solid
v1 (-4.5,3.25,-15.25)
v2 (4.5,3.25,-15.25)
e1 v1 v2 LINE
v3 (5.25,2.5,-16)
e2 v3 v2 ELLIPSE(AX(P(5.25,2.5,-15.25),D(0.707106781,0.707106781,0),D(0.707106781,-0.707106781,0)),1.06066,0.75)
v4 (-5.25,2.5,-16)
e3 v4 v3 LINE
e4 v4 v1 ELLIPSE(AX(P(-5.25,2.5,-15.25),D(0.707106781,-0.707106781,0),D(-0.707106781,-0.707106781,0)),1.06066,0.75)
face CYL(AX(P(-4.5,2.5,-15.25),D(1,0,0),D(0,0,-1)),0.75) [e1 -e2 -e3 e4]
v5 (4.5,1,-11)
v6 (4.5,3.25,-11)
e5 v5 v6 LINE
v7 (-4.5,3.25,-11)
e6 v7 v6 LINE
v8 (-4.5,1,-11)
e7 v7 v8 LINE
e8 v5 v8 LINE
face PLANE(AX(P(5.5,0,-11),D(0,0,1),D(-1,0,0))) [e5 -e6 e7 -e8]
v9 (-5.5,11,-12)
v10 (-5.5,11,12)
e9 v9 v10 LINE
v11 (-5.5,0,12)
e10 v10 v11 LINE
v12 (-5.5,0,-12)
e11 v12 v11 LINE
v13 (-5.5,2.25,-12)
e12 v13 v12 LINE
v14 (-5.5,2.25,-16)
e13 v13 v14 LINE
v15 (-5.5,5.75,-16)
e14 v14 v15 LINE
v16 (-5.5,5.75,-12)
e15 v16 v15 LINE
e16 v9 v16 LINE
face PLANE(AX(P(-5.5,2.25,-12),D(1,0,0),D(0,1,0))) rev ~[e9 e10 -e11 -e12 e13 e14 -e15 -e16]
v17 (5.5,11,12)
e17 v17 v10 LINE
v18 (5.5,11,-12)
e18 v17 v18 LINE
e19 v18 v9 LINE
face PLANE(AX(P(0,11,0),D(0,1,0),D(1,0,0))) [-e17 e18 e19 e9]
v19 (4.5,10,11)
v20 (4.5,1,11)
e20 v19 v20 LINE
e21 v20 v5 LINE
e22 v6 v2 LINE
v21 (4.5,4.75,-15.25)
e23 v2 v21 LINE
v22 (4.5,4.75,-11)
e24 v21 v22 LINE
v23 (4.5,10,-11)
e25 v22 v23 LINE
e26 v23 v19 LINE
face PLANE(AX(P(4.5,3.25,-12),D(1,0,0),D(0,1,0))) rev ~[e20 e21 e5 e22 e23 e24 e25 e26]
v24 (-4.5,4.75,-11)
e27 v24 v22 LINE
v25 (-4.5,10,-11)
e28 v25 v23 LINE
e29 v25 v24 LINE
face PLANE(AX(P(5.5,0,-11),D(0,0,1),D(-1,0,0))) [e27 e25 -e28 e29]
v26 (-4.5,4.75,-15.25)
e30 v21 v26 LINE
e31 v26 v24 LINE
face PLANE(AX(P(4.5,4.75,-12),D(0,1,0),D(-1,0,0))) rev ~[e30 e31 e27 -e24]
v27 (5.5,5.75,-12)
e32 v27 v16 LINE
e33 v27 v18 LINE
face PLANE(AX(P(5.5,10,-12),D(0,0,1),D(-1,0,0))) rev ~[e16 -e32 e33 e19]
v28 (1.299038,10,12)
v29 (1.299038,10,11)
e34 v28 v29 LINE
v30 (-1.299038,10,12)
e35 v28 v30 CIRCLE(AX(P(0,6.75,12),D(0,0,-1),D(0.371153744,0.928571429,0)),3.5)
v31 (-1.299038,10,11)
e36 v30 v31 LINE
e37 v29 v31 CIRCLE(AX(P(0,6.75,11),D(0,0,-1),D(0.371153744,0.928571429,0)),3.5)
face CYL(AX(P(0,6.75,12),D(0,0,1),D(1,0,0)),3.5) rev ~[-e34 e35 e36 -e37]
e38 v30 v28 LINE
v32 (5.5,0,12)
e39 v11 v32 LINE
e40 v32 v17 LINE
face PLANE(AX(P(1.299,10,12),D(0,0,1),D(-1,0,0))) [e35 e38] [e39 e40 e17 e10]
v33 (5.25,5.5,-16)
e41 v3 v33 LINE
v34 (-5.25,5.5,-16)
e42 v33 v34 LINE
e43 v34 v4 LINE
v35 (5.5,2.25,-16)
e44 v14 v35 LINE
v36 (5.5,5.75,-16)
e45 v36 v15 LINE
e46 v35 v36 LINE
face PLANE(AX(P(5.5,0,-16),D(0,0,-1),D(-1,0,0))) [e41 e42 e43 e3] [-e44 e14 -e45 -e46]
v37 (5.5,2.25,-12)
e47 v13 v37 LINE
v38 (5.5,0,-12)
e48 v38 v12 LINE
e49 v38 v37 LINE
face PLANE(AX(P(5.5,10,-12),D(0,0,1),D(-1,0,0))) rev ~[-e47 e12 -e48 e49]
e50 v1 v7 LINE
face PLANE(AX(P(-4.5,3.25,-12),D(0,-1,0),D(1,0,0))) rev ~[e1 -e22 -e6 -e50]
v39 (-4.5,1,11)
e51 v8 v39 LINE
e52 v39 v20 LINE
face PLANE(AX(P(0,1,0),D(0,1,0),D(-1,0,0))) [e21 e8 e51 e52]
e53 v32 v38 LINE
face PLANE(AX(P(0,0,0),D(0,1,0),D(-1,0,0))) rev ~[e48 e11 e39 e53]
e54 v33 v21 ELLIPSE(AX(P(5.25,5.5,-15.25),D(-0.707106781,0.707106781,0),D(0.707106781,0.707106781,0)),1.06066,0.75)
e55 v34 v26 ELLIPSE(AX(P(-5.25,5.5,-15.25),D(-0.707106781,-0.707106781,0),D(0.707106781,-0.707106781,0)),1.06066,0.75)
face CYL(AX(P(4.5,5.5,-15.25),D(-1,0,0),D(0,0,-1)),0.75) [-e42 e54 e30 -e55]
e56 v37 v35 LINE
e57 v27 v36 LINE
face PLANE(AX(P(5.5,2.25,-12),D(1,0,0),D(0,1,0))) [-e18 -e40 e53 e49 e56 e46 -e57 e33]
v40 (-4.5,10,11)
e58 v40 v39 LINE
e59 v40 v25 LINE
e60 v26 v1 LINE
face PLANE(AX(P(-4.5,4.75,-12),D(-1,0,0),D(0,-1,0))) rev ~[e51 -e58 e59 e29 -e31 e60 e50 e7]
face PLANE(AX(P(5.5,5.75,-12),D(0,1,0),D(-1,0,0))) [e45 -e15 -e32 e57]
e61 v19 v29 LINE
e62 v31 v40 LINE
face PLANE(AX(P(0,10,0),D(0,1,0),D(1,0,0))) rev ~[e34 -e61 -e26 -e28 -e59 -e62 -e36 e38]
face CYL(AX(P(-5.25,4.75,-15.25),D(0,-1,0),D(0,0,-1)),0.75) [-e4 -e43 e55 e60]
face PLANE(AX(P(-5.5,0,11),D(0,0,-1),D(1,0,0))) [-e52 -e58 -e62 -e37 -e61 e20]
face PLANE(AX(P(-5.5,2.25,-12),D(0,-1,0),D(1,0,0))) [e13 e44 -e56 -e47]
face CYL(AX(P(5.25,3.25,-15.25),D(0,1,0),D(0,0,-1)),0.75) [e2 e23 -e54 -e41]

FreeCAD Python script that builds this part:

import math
import FreeCAD as App
import Part
import Sketcher
from FreeCAD import Vector


def edges_at(feature, points):
    """Names of the edges that pass closest to the given points."""
    edges = feature.Shape.Edges
    near = lambda p: min(range(len(edges)), key=lambda i: edges[i].distToShape(Part.Vertex(*p))[0])
    return sorted({f"Edge{near(p) + 1}" for p in points})


def faces_at(feature, points):
    """Names of the faces that lie closest to the given points."""
    faces = feature.Shape.Faces
    near = lambda p: min(range(len(faces)), key=lambda i: faces[i].distToShape(Part.Vertex(*p))[0])
    return sorted({f"Face{near(p) + 1}" for p in points})


def add_polygon(sketch, points):
    """Adds a closed chain of lines whose ends are joined by coincident constraints."""
    first, n = sketch.GeometryCount, len(points)
    for a, b in zip(points, points[1:] + points[:1]):
        sketch.addGeometry(Part.LineSegment(App.Vector(*a, 0), App.Vector(*b, 0)), False)
    for i in range(n):
        sketch.addConstraint(Sketcher.Constraint("Coincident", first + i, 2, first + (i + 1) % n, 1))

doc = App.newDocument("Part")
body = doc.addObject("PartDesign::Body", "Body")

sketch1 = body.newObject("Sketcher::SketchObject", "Sketch")
sketch1.AttachmentSupport = (doc.getObject("XZ_Plane"), [""])
sketch1.MapMode = "FlatFace"
add_polygon(sketch1, [(5.5, 12), (5.5, -12), (-5.5, -12), (-5.5, 12)])
sketch1.addConstraint(Sketcher.Constraint("Vertical", 0))
sketch1.addConstraint(Sketcher.Constraint("Horizontal", 1))
sketch1.addConstraint(Sketcher.Constraint("Vertical", 2))
sketch1.addConstraint(Sketcher.Constraint("Horizontal", 3))
sketch1.addConstraint(Sketcher.Constraint("Symmetric", 0, 2, 2, 2, -1, 1))
sketch1.addConstraint(Sketcher.Constraint("DistanceX", 1, 2, 1, 1, 11.0))
sketch1.addConstraint(Sketcher.Constraint("DistanceY", 0, 2, 0, 1, 24.0))
pad1 = body.newObject("PartDesign::Pad", "Pad")
pad1.Profile = sketch1
pad1.Length = 10
pad1.Reversed = True
doc.recompute()

thickness = body.newObject("PartDesign::Thickness", "Thickness")
thickness.Base = (pad1, faces_at(pad1, [(1.833, 10, 4)]))
thickness.Value = 1
thickness.Reversed = True
thickness.Join = "Intersection"

sketch2 = body.newObject("Sketcher::SketchObject", "Sketch001")
sketch2.AttachmentSupport = (doc.getObject("XY_Plane"), [""])
sketch2.MapMode = "FlatFace"
sketch2.AttachmentOffset = App.Placement(Vector(0, 0, 12), App.Rotation())
sketch2.addGeometry(Part.LineSegment(Vector(1.299038, 10, 0), Vector(-1.299038, 10, 0)), False)
sketch2.addGeometry(Part.ArcOfCircle(Part.Circle(Vector(0, 6.75, 0), Vector(0, 0, 1), 3.5), math.radians(111.786789), math.radians(428.213211)), False)
sketch2.addConstraint(Sketcher.Constraint("Coincident", 0, 1, 1, 2))
sketch2.addConstraint(Sketcher.Constraint("Coincident", 1, 1, 0, 2))
sketch2.addConstraint(Sketcher.Constraint("Horizontal", 0))
sketch2.addConstraint(Sketcher.Constraint("PointOnObject", 1, 3, -2))
sketch2.addConstraint(Sketcher.Constraint("Radius", 1, 3.5))
sketch2.addConstraint(Sketcher.Constraint("DistanceY", -1, 1, 0, 1, 10.0))
sketch2.addConstraint(Sketcher.Constraint("DistanceX", 0, 2, 0, 1, 2.598))
pocket1 = body.newObject("PartDesign::Pocket", "Pocket")
pocket1.Profile = sketch2
pocket1.Length = 9

sketch3 = body.newObject("Sketcher::SketchObject", "Sketch002")
sketch3.AttachmentSupport = (doc.getObject("XZ_Plane"), [""])
sketch3.MapMode = "FlatFace"
sketch3.AttachmentOffset = App.Placement(Vector(0, 0, -10), App.Rotation())
add_polygon(sketch3, [(-5.5, 12), (5.5, 12), (5.5, -12), (-5.5, -12)])
sketch3.addConstraint(Sketcher.Constraint("Horizontal", 0))
sketch3.addConstraint(Sketcher.Constraint("Vertical", 1))
sketch3.addConstraint(Sketcher.Constraint("Horizontal", 2))
sketch3.addConstraint(Sketcher.Constraint("Vertical", 3))
sketch3.addConstraint(Sketcher.Constraint("Symmetric", 0, 2, 2, 2, -1, 1))
sketch3.addConstraint(Sketcher.Constraint("DistanceX", 0, 1, 0, 2, 11.0))
sketch3.addConstraint(Sketcher.Constraint("DistanceY", 1, 2, 1, 1, 24.0))
pad2 = body.newObject("PartDesign::Pad", "Pad001")
pad2.Profile = sketch3
pad2.Length = 1
pad2.Reversed = True

sketch4 = body.newObject("Sketcher::SketchObject", "Sketch003")
sketch4.AttachmentSupport = (doc.getObject("XY_Plane"), [""])
sketch4.MapMode = "FlatFace"
sketch4.AttachmentOffset = App.Placement(Vector(0, 0, -12), App.Rotation())
add_polygon(sketch4, [(-4.5, 3.25), (-4.5, 4.75), (4.5, 4.75), (4.5, 3.25)])
sketch4.addConstraint(Sketcher.Constraint("Vertical", 0))
sketch4.addConstraint(Sketcher.Constraint("Horizontal", 1))
sketch4.addConstraint(Sketcher.Constraint("Vertical", 2))
sketch4.addConstraint(Sketcher.Constraint("Horizontal", 3))
sketch4.addConstraint(Sketcher.Constraint("DistanceY", 0, 1, 0, 2, 1.5))
sketch4.addConstraint(Sketcher.Constraint("DistanceX", 1, 1, 1, 2, 9.0))
sketch4.addConstraint(Sketcher.Constraint("DistanceX", 0, 2, -1, 1, 4.5))
sketch4.addConstraint(Sketcher.Constraint("DistanceY", -1, 1, 0, 2, 4.75))
pocket2 = body.newObject("PartDesign::Pocket", "Pocket001")
pocket2.Profile = sketch4
pocket2.Length = 10
pocket2.Reversed = True

sketch5 = body.newObject("Sketcher::SketchObject", "Sketch004")
sketch5.AttachmentSupport = (doc.getObject("XY_Plane"), [""])
sketch5.MapMode = "FlatFace"
sketch5.AttachmentOffset = App.Placement(Vector(0, 0, -12), App.Rotation())
add_polygon(sketch5, [(5.5, 2.25), (-5.5, 2.25), (-5.5, 5.75), (5.5, 5.75)])
add_polygon(sketch5, [(-4.5, 3.25), (4.5, 3.25), (4.5, 4.75), (-4.5, 4.75)])
sketch5.addConstraint(Sketcher.Constraint("Horizontal", 0))
sketch5.addConstraint(Sketcher.Constraint("Vertical", 1))
sketch5.addConstraint(Sketcher.Constraint("Horizontal", 2))
sketch5.addConstraint(Sketcher.Constraint("Vertical", 3))
sketch5.addConstraint(Sketcher.Constraint("Horizontal", 4))
sketch5.addConstraint(Sketcher.Constraint("Vertical", 5))
sketch5.addConstraint(Sketcher.Constraint("Horizontal", 6))
sketch5.addConstraint(Sketcher.Constraint("Vertical", 7))
sketch5.addConstraint(Sketcher.Constraint("DistanceX", 4, 2, 3, 2, 1.0))
sketch5.addConstraint(Sketcher.Constraint("DistanceY", 3, 2, 4, 2, 1.0))
sketch5.addConstraint(Sketcher.Constraint("DistanceY", 5, 2, 2, 2, 1.0))
sketch5.addConstraint(Sketcher.Constraint("DistanceX", 1, 2, 6, 2, 1.0))
sketch5.addConstraint(Sketcher.Constraint("DistanceX", 0, 2, 0, 1, 11.0))
sketch5.addConstraint(Sketcher.Constraint("DistanceY", 1, 1, 1, 2, 3.5))
sketch5.addConstraint(Sketcher.Constraint("DistanceX", 0, 2, -1, 1, 5.5))
sketch5.addConstraint(Sketcher.Constraint("DistanceY", -1, 1, 0, 2, 2.25))
pad3 = body.newObject("PartDesign::Pad", "Pad002")
pad3.Profile = sketch5
pad3.Length = 4
pad3.Reversed = True
doc.recompute()

fillet = body.newObject("PartDesign::Fillet", "Fillet")
fillet.Base = (pad3, edges_at(pad3, [
    (-4.5, 4, -16),
    (0, 3.25, -16),
    (4.5, 4, -16),
    (0, 4.75, -16),
]))
fillet.Radius = 0.75

doc.recompute()
